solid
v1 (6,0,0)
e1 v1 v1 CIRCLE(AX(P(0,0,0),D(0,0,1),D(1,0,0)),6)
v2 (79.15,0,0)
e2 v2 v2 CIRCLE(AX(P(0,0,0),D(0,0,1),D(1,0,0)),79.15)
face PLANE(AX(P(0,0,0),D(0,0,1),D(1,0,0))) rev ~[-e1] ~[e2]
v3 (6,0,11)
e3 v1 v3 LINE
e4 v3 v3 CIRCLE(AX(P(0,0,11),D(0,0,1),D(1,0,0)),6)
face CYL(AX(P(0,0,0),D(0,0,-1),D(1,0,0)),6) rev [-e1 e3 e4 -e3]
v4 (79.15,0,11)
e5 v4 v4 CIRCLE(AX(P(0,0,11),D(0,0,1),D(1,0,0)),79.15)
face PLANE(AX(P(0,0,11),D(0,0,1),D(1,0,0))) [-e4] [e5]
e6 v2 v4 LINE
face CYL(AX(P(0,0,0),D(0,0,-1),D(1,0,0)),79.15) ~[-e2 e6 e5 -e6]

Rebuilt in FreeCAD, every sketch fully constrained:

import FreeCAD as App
import Part
import Sketcher
Q = App.Units.Quantity

doc = App.newDocument("Part")
body = doc.addObject("PartDesign::Body", "Body")

sketch1 = doc.addObject("Sketcher::SketchObject", "Sketch")
body.addObject(sketch1)
sketch1.AttachmentSupport = (doc.XY_Plane, [""])
sketch1.MapMode = "FlatFace"
sketch1.addGeometry([
    Part.Circle(App.Vector(0, 0, 0), App.Vector(0, 0, 1), 79),
    Part.Circle(App.Vector(0, 0, 0), App.Vector(0, 0, 1), 6),
], False)
sketch1.addConstraint([
    Sketcher.Constraint("Coincident", 0, 3, -1, 1),
    Sketcher.Constraint("Coincident", 1, 3, -1, 1),
    Sketcher.Constraint("Diameter", 1, Q("12 mm")),
    Sketcher.Constraint("Diameter", 0, Q("158.3 mm")),
])
pad1 = doc.addObject("PartDesign::Pad", "Pad")
body.addObject(pad1)
pad1.Profile = sketch1
pad1.Length = 11

doc.recompute()
